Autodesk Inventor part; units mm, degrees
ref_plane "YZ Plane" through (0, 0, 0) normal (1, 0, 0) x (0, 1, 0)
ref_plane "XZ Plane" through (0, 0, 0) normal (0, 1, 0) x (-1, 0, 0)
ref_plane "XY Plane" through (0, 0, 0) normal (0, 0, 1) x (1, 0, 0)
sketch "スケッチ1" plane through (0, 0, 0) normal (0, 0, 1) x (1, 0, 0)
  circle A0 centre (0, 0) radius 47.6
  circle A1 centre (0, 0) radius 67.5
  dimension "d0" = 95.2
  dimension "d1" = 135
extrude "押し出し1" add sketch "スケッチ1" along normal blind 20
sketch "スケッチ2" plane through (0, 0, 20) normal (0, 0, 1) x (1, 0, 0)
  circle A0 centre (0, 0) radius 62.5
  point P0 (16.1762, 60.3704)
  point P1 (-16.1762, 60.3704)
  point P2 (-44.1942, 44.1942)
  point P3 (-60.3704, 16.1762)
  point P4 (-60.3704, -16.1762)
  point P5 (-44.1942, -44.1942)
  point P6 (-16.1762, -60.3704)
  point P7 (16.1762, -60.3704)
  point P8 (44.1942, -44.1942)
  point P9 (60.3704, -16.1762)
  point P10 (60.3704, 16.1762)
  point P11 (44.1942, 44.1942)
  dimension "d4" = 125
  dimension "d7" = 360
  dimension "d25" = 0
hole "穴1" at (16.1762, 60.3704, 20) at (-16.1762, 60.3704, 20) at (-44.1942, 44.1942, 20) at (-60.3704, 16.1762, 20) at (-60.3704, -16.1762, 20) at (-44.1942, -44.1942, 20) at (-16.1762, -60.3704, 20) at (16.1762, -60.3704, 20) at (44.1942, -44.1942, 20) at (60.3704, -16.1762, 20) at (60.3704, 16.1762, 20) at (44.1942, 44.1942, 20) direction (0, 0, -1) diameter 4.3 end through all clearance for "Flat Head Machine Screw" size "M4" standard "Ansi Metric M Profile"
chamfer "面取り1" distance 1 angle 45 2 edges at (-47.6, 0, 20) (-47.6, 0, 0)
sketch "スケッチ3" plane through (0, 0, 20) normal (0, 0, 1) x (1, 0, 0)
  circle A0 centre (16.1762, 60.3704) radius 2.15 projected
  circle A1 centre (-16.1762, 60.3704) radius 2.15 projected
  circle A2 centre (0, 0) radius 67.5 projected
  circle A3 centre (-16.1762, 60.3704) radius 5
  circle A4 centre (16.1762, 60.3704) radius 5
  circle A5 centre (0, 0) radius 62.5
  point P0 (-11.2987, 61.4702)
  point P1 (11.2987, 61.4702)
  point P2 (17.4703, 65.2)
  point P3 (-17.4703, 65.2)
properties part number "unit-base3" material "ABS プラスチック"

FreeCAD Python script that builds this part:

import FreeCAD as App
import Part
import Sketcher

V = App.Vector


def edges_at(feature, points):
    """Names of the edges that pass closest to the given points."""
    edges = feature.Shape.Edges
    near = lambda p: min(range(len(edges)), key=lambda i: edges[i].distToShape(Part.Vertex(*p))[0])
    return sorted({f"Edge{near(p) + 1}" for p in points})

doc = App.newDocument("Part")
body = doc.addObject("PartDesign::Body", "Body")

# Sketch on XY plane
sketch1 = body.newObject("Sketcher::SketchObject", "Sketch")
sketch1.AttachmentSupport = (doc.getObject("XY_Plane"), [""])
sketch1.MapMode = "FlatFace"
sketch1.addGeometry([
    Part.Circle(V(0, 0, 0), V(0, 0, 1), 68),
    Part.Circle(V(0, 0, 0), V(0, 0, 1), 48),
], False)
sketch1.addConstraint([
    Sketcher.Constraint("Coincident", 0, 3, -1, 1),
    Sketcher.Constraint("Coincident", 1, 3, -1, 1),
    Sketcher.Constraint("Diameter", 0, 135.0),
    Sketcher.Constraint("Diameter", 1, 95.2),
])
pad1 = body.newObject("PartDesign::Pad", "Pad")
pad1.Profile = sketch1
pad1.Length = 20

# Sketch on XY plane
sketch2 = body.newObject("Sketcher::SketchObject", "Sketch001")
sketch2.AttachmentSupport = (doc.getObject("XY_Plane"), [""])
sketch2.MapMode = "FlatFace"
sketch2.AttachmentOffset = App.Placement(V(0, 0, 20), App.Rotation())
sketch2.addGeometry([
    Part.Circle(V(16.2, 60.4, 0), V(0, 0, 1), 2.1),  # 0
    Part.Circle(V(-16.2, 60.4, 0), V(0, 0, 1), 2.1),  # 1
    Part.Circle(V(-44.2, 44.2, 0), V(0, 0, 1), 2.1),  # 2
    Part.Circle(V(-60.4, 16.2, 0), V(0, 0, 1), 2.1),  # 3
    Part.Circle(V(-60.4, -16.2, 0), V(0, 0, 1), 2.1),  # 4
    Part.Circle(V(-44.2, -44.2, 0), V(0, 0, 1), 2.1),  # 5
    Part.Circle(V(-16.2, -60.4, 0), V(0, 0, 1), 2.1),  # 6
    Part.Circle(V(16.2, -60.4, 0), V(0, 0, 1), 2.1),  # 7
    Part.Circle(V(44.2, -44.2, 0), V(0, 0, 1), 2.1),  # 8
    Part.Circle(V(60.4, -16.2, 0), V(0, 0, 1), 2.1),  # 9
    Part.Circle(V(60.4, 16.2, 0), V(0, 0, 1), 2.1),  # 10
    Part.Circle(V(44.2, 44.2, 0), V(0, 0, 1), 2.1),  # 11
], False)
sketch2.addConstraint([
    Sketcher.Constraint("Equal", 0, 1),
    Sketcher.Constraint("Equal", 1, 2),
    Sketcher.Constraint("Equal", 2, 3),
    Sketcher.Constraint("Equal", 3, 4),
    Sketcher.Constraint("Equal", 4, 5),
    Sketcher.Constraint("Equal", 5, 6),
    Sketcher.Constraint("Equal", 6, 7),
    Sketcher.Constraint("Equal", 7, 8),
    Sketcher.Constraint("Equal", 8, 9),
    Sketcher.Constraint("Equal", 9, 10),
    Sketcher.Constraint("Equal", 10, 11),
    Sketcher.Constraint("Symmetric", 0, 3, 6, 3, -1, 1),
    Sketcher.Constraint("Symmetric", 1, 3, 7, 3, -1, 1),
    Sketcher.Constraint("Symmetric", 2, 3, 8, 3, -1, 1),
    Sketcher.Constraint("Symmetric", 3, 3, 9, 3, -1, 1),
    Sketcher.Constraint("Symmetric", 4, 3, 10, 3, -1, 1),
    Sketcher.Constraint("Symmetric", 5, 3, 11, 3, -1, 1),
    Sketcher.Constraint("Symmetric", 0, 3, 1, 3, -2),
    Sketcher.Constraint("Symmetric", 5, 3, 8, 3, -2),
    Sketcher.Constraint("Symmetric", 4, 3, 9, 3, -2),
    Sketcher.Constraint("Diameter", 0, 4.3),
    Sketcher.Constraint("DistanceX", 2, 3, 1, 3, 28.018),
    Sketcher.Constraint("DistanceY", 3, 3, 2, 3, 28.018),
    Sketcher.Constraint("DistanceX", -1, 1, 0, 3, 16.1762),
    Sketcher.Constraint("DistanceY", -1, 1, 0, 3, 60.3704),
    Sketcher.Constraint("DistanceY", -1, 1, 2, 3, 44.1942),
    Sketcher.Constraint("DistanceX", 3, 3, -1, 1, 60.3704),
])
doc.recompute()
hole = body.newObject("PartDesign::Hole", "Hole")
hole.Profile = sketch2
hole.ThreadType = "None"
hole.Diameter = 4.3
hole.DepthType = "ThroughAll"
doc.recompute()

chamfer = body.newObject("PartDesign::Chamfer", "Chamfer")
chamfer.Base = (hole, edges_at(hole, [(-47.6, 0, 20), (-47.6, 0, 0)]))
chamfer.Size = 1

doc.recompute()
